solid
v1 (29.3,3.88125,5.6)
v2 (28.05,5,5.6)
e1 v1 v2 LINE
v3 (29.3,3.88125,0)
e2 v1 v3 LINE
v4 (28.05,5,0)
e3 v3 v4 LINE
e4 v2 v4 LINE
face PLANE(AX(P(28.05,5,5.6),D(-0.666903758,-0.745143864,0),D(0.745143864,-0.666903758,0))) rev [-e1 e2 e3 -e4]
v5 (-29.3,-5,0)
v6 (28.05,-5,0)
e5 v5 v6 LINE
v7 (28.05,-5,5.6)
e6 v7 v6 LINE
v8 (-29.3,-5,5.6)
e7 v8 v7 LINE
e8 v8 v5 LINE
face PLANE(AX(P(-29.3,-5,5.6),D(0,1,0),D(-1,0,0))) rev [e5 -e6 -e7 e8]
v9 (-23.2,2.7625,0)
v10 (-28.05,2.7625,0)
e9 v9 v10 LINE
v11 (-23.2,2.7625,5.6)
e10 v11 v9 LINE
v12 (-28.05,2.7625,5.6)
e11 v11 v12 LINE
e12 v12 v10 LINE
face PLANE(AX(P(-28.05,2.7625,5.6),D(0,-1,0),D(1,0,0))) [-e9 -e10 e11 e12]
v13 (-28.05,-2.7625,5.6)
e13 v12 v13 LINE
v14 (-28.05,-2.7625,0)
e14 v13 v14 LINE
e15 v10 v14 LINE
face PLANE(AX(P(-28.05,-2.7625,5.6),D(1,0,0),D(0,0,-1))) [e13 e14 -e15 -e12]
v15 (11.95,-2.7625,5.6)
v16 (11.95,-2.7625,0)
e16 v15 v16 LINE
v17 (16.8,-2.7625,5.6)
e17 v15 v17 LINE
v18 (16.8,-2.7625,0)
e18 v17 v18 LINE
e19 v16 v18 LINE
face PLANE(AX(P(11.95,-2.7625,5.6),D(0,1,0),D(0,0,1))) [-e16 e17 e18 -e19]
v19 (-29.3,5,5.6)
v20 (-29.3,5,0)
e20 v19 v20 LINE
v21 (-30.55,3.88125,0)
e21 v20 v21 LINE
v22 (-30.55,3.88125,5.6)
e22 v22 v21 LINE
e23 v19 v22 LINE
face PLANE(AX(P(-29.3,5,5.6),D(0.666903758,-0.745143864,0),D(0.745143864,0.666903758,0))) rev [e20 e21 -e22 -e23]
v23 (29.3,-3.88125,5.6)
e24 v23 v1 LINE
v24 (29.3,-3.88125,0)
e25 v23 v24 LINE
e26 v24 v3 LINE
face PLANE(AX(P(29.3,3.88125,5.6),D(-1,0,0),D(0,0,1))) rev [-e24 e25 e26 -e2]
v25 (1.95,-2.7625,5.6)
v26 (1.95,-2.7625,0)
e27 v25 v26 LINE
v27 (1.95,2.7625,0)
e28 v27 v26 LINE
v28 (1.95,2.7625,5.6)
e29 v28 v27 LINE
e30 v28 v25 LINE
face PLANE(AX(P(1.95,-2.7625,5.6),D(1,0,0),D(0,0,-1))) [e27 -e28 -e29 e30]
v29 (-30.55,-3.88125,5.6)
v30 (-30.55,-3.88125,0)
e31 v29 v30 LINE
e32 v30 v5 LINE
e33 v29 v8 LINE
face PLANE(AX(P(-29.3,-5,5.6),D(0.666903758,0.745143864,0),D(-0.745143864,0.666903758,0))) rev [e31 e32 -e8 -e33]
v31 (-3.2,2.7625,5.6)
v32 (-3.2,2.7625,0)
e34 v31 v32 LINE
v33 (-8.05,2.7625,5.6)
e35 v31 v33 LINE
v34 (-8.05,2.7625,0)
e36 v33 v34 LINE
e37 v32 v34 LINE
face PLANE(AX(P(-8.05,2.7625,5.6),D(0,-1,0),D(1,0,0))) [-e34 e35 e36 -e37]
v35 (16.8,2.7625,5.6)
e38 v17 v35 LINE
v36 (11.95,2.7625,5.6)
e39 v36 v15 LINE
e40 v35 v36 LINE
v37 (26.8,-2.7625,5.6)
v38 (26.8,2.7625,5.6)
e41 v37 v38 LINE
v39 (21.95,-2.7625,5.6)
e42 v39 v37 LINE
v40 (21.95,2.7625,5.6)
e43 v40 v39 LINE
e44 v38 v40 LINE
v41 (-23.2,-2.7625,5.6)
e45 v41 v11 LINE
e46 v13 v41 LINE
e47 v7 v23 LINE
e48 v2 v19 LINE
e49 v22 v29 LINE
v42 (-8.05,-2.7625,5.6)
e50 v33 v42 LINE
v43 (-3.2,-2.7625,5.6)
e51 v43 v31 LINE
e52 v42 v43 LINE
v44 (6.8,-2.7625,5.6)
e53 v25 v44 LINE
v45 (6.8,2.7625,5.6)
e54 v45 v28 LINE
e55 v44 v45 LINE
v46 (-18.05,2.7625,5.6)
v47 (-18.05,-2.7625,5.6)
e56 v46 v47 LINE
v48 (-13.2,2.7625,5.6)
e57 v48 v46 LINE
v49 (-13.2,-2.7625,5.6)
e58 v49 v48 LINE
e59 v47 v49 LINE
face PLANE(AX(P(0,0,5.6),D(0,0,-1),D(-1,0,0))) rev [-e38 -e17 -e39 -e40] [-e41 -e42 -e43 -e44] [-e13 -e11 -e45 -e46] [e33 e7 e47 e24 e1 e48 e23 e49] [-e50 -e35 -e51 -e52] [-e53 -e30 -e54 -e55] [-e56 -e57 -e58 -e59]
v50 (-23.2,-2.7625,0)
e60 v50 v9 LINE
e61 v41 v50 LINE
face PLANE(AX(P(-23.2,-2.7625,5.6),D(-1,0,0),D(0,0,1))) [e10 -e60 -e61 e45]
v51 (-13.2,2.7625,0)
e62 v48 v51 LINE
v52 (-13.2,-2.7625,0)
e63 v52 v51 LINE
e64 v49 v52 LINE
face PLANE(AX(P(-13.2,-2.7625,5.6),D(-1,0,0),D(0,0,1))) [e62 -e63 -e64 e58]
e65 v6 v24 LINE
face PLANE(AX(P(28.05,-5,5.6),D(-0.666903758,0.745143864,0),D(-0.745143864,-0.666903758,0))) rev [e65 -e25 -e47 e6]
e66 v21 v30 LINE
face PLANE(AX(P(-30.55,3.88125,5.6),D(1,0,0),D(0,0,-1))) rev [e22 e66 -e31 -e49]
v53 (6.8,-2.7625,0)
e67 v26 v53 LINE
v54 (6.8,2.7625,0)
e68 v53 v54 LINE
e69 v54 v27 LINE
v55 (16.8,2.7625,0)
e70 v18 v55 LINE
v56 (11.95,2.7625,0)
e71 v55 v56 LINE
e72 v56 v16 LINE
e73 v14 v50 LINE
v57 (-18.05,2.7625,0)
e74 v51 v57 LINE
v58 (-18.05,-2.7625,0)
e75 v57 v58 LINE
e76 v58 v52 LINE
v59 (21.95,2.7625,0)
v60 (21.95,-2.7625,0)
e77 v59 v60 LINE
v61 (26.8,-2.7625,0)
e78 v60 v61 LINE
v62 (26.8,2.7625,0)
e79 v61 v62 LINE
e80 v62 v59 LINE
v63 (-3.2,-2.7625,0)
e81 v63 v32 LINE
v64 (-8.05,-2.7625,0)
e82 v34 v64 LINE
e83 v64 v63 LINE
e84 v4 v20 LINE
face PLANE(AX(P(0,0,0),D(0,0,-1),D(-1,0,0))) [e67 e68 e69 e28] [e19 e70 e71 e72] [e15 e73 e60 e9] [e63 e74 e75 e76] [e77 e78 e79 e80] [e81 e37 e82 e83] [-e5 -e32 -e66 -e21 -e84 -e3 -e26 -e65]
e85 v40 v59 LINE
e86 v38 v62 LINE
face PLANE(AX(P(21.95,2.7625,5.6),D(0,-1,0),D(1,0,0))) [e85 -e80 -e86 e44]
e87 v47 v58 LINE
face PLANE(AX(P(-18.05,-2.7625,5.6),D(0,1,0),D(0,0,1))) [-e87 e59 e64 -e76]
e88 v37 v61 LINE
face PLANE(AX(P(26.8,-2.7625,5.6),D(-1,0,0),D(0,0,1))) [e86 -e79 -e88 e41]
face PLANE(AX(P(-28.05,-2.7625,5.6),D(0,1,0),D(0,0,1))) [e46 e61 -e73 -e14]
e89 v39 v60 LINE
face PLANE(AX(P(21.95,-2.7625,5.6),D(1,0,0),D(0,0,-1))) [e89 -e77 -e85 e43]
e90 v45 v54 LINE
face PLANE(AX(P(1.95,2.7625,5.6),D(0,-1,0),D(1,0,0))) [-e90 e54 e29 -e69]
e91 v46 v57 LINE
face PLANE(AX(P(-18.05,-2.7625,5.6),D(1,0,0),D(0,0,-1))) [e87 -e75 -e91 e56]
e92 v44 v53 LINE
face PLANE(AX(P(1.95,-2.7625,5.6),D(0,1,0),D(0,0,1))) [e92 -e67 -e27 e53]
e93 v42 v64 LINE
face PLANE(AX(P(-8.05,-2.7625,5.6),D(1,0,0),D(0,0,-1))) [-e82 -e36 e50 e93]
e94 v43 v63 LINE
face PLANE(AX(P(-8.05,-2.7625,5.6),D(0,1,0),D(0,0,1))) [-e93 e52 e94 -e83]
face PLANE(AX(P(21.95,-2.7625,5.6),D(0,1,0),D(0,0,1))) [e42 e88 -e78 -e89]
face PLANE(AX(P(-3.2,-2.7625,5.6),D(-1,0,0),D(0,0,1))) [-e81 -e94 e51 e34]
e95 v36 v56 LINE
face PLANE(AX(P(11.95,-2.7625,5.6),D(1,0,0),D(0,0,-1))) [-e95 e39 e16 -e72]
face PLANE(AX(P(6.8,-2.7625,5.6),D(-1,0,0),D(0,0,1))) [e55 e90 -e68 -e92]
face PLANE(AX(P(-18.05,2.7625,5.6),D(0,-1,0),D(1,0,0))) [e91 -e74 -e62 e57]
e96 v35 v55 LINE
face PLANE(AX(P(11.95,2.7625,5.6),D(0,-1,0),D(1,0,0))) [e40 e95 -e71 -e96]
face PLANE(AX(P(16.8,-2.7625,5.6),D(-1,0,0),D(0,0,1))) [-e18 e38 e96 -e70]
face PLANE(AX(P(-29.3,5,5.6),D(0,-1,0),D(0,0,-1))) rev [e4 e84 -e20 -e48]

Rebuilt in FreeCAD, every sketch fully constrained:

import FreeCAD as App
import Part
import Sketcher
from FreeCAD import Vector

doc = App.newDocument("Part")
body = doc.addObject("PartDesign::Body", "Body")

# Sketch on XY plane
sketch1 = doc.addObject("Sketcher::SketchObject", "Sketch")
body.addObject(sketch1)
sketch1.AttachmentSupport = (doc.XY_Plane, [""])
sketch1.MapMode = "FlatFace"
sketch1.addGeometry(Part.LineSegment(Vector(-30.6, 3.9, 0), Vector(-30.6, -3.9, 0)), False)
sketch1.addGeometry(Part.LineSegment(Vector(-30.6, -3.9, 0), Vector(-29.3, -5, 0)), False)
sketch1.addGeometry(Part.LineSegment(Vector(-29.3, -5, 0), Vector(28.1, -5, 0)), False)
sketch1.addGeometry(Part.LineSegment(Vector(28.1, -5, 0), Vector(29.3, -3.9, 0)), False)
sketch1.addGeometry(Part.LineSegment(Vector(29.3, -3.9, 0), Vector(29.3, 3.9, 0)), False)
sketch1.addGeometry(Part.LineSegment(Vector(29.3, 3.9, 0), Vector(28.1, 5, 0)), False)
sketch1.addGeometry(Part.LineSegment(Vector(28.1, 5, 0), Vector(-29.3, 5, 0)), False)
sketch1.addGeometry(Part.LineSegment(Vector(-29.3, 5, 0), Vector(-30.6, 3.9, 0)), False)
sketch1.addGeometry(Part.LineSegment(Vector(-23.2, -2.8, 0), Vector(-28.1, -2.8, 0)), False)
sketch1.addGeometry(Part.LineSegment(Vector(-28.1, -2.8, 0), Vector(-28.1, 2.8, 0)), False)
sketch1.addGeometry(Part.LineSegment(Vector(-28.1, 2.8, 0), Vector(-23.2, 2.8, 0)), False)
sketch1.addGeometry(Part.LineSegment(Vector(-23.2, 2.8, 0), Vector(-23.2, -2.8, 0)), False)
sketch1.addGeometry(Part.LineSegment(Vector(-13.2, -2.8, 0), Vector(-18.1, -2.8, 0)), False)
sketch1.addGeometry(Part.LineSegment(Vector(-18.1, -2.8, 0), Vector(-18.1, 2.8, 0)), False)
sketch1.addGeometry(Part.LineSegment(Vector(-18.1, 2.8, 0), Vector(-13.2, 2.8, 0)), False)
sketch1.addGeometry(Part.LineSegment(Vector(-13.2, 2.8, 0), Vector(-13.2, -2.8, 0)), False)
sketch1.addGeometry(Part.LineSegment(Vector(-3.2, -2.8, 0), Vector(-8.1, -2.8, 0)), False)
sketch1.addGeometry(Part.LineSegment(Vector(-8.1, -2.8, 0), Vector(-8.1, 2.8, 0)), False)
sketch1.addGeometry(Part.LineSegment(Vector(-8.1, 2.8, 0), Vector(-3.2, 2.8, 0)), False)
sketch1.addGeometry(Part.LineSegment(Vector(-3.2, 2.8, 0), Vector(-3.2, -2.8, 0)), False)
sketch1.addGeometry(Part.LineSegment(Vector(6.8, -2.8, 0), Vector(1.9, -2.8, 0)), False)
sketch1.addGeometry(Part.LineSegment(Vector(1.9, -2.8, 0), Vector(1.9, 2.8, 0)), False)
sketch1.addGeometry(Part.LineSegment(Vector(1.9, 2.8, 0), Vector(6.8, 2.8, 0)), False)
sketch1.addGeometry(Part.LineSegment(Vector(6.8, 2.8, 0), Vector(6.8, -2.8, 0)), False)
sketch1.addGeometry(Part.LineSegment(Vector(16.8, -2.8, 0), Vector(11.9, -2.8, 0)), False)
sketch1.addGeometry(Part.LineSegment(Vector(11.9, -2.8, 0), Vector(11.9, 2.8, 0)), False)
sketch1.addGeometry(Part.LineSegment(Vector(11.9, 2.8, 0), Vector(16.8, 2.8, 0)), False)
sketch1.addGeometry(Part.LineSegment(Vector(16.8, 2.8, 0), Vector(16.8, -2.8, 0)), False)
sketch1.addGeometry(Part.LineSegment(Vector(26.8, -2.8, 0), Vector(21.9, -2.8, 0)), False)
sketch1.addGeometry(Part.LineSegment(Vector(21.9, -2.8, 0), Vector(21.9, 2.8, 0)), False)
sketch1.addGeometry(Part.LineSegment(Vector(21.9, 2.8, 0), Vector(26.8, 2.8, 0)), False)
sketch1.addGeometry(Part.LineSegment(Vector(26.8, 2.8, 0), Vector(26.8, -2.8, 0)), False)
sketch1.addConstraint(Sketcher.Constraint("Coincident", 0, 2, 1, 1))
sketch1.addConstraint(Sketcher.Constraint("Coincident", 1, 2, 2, 1))
sketch1.addConstraint(Sketcher.Constraint("Coincident", 2, 2, 3, 1))
sketch1.addConstraint(Sketcher.Constraint("Coincident", 3, 2, 4, 1))
sketch1.addConstraint(Sketcher.Constraint("Coincident", 4, 2, 5, 1))
sketch1.addConstraint(Sketcher.Constraint("Coincident", 5, 2, 6, 1))
sketch1.addConstraint(Sketcher.Constraint("Coincident", 6, 2, 7, 1))
sketch1.addConstraint(Sketcher.Constraint("Coincident", 7, 2, 0, 1))
sketch1.addConstraint(Sketcher.Constraint("Coincident", 8, 2, 9, 1))
sketch1.addConstraint(Sketcher.Constraint("Coincident", 9, 2, 10, 1))
sketch1.addConstraint(Sketcher.Constraint("Coincident", 10, 2, 11, 1))
sketch1.addConstraint(Sketcher.Constraint("Coincident", 11, 2, 8, 1))
sketch1.addConstraint(Sketcher.Constraint("Coincident", 12, 2, 13, 1))
sketch1.addConstraint(Sketcher.Constraint("Coincident", 13, 2, 14, 1))
sketch1.addConstraint(Sketcher.Constraint("Coincident", 14, 2, 15, 1))
sketch1.addConstraint(Sketcher.Constraint("Coincident", 15, 2, 12, 1))
sketch1.addConstraint(Sketcher.Constraint("Coincident", 16, 2, 17, 1))
sketch1.addConstraint(Sketcher.Constraint("Coincident", 17, 2, 18, 1))
sketch1.addConstraint(Sketcher.Constraint("Coincident", 18, 2, 19, 1))
sketch1.addConstraint(Sketcher.Constraint("Coincident", 19, 2, 16, 1))
sketch1.addConstraint(Sketcher.Constraint("Coincident", 20, 2, 21, 1))
sketch1.addConstraint(Sketcher.Constraint("Coincident", 21, 2, 22, 1))
sketch1.addConstraint(Sketcher.Constraint("Coincident", 22, 2, 23, 1))
sketch1.addConstraint(Sketcher.Constraint("Coincident", 23, 2, 20, 1))
sketch1.addConstraint(Sketcher.Constraint("Coincident", 24, 2, 25, 1))
sketch1.addConstraint(Sketcher.Constraint("Coincident", 25, 2, 26, 1))
sketch1.addConstraint(Sketcher.Constraint("Coincident", 26, 2, 27, 1))
sketch1.addConstraint(Sketcher.Constraint("Coincident", 27, 2, 24, 1))
sketch1.addConstraint(Sketcher.Constraint("Coincident", 28, 2, 29, 1))
sketch1.addConstraint(Sketcher.Constraint("Coincident", 29, 2, 30, 1))
sketch1.addConstraint(Sketcher.Constraint("Coincident", 30, 2, 31, 1))
sketch1.addConstraint(Sketcher.Constraint("Coincident", 31, 2, 28, 1))
sketch1.addConstraint(Sketcher.Constraint("Vertical", 0))
sketch1.addConstraint(Sketcher.Constraint("Horizontal", 2))
sketch1.addConstraint(Sketcher.Constraint("Vertical", 4))
sketch1.addConstraint(Sketcher.Constraint("Horizontal", 6))
sketch1.addConstraint(Sketcher.Constraint("Horizontal", 8))
sketch1.addConstraint(Sketcher.Constraint("Vertical", 9))
sketch1.addConstraint(Sketcher.Constraint("Horizontal", 10))
sketch1.addConstraint(Sketcher.Constraint("Vertical", 11))
sketch1.addConstraint(Sketcher.Constraint("Horizontal", 12))
sketch1.addConstraint(Sketcher.Constraint("Vertical", 13))
sketch1.addConstraint(Sketcher.Constraint("Horizontal", 14))
sketch1.addConstraint(Sketcher.Constraint("Vertical", 15))
sketch1.addConstraint(Sketcher.Constraint("Horizontal", 16))
sketch1.addConstraint(Sketcher.Constraint("Vertical", 17))
sketch1.addConstraint(Sketcher.Constraint("Horizontal", 18))
sketch1.addConstraint(Sketcher.Constraint("Vertical", 19))
sketch1.addConstraint(Sketcher.Constraint("Horizontal", 20))
sketch1.addConstraint(Sketcher.Constraint("Vertical", 21))
sketch1.addConstraint(Sketcher.Constraint("Horizontal", 22))
sketch1.addConstraint(Sketcher.Constraint("Vertical", 23))
sketch1.addConstraint(Sketcher.Constraint("Horizontal", 24))
sketch1.addConstraint(Sketcher.Constraint("Vertical", 25))
sketch1.addConstraint(Sketcher.Constraint("Horizontal", 26))
sketch1.addConstraint(Sketcher.Constraint("Vertical", 27))
sketch1.addConstraint(Sketcher.Constraint("Horizontal", 28))
sketch1.addConstraint(Sketcher.Constraint("Vertical", 29))
sketch1.addConstraint(Sketcher.Constraint("Horizontal", 30))
sketch1.addConstraint(Sketcher.Constraint("Vertical", 31))
sketch1.addConstraint(Sketcher.Constraint("Symmetric", 2, 2, 5, 2, -1))
sketch1.addConstraint(Sketcher.Constraint("Parallel", 1, 5))
sketch1.addConstraint(Sketcher.Constraint("Parallel", 3, 7))
sketch1.addConstraint(Sketcher.Constraint("Horizontal", 0, 2, 3, 2))
sketch1.addConstraint(Sketcher.Constraint("Horizontal", 4, 2, 7, 2))
sketch1.addConstraint(Sketcher.Constraint("Horizontal", 11, 2, 12, 2))
sketch1.addConstraint(Sketcher.Constraint("Horizontal", 10, 2, 13, 2))
sketch1.addConstraint(Sketcher.Constraint("Horizontal", 15, 2, 16, 2))
sketch1.addConstraint(Sketcher.Constraint("Horizontal", 14, 2, 17, 2))
sketch1.addConstraint(Sketcher.Constraint("Horizontal", 19, 2, 20, 2))
sketch1.addConstraint(Sketcher.Constraint("Horizontal", 18, 2, 21, 2))
sketch1.addConstraint(Sketcher.Constraint("Horizontal", 23, 2, 24, 2))
sketch1.addConstraint(Sketcher.Constraint("Horizontal", 22, 2, 25, 2))
sketch1.addConstraint(Sketcher.Constraint("Horizontal", 27, 2, 28, 2))
sketch1.addConstraint(Sketcher.Constraint("Horizontal", 26, 2, 29, 2))
sketch1.addConstraint(Sketcher.Constraint("Vertical", 1, 2, 6, 2))
sketch1.addConstraint(Sketcher.Constraint("Equal", 10, 12))
sketch1.addConstraint(Sketcher.Constraint("Equal", 14, 16))
sketch1.addConstraint(Sketcher.Constraint("Equal", 18, 20))
sketch1.addConstraint(Sketcher.Constraint("Equal", 22, 24))
sketch1.addConstraint(Sketcher.Constraint("Equal", 26, 28))
sketch1.addConstraint(Sketcher.Constraint("DistanceY", 1, 2, -1, 1, 5.0))
sketch1.addConstraint(Sketcher.Constraint("DistanceX", 8, 2, 12, 2, 10.0))
sketch1.addConstraint(Sketcher.Constraint("DistanceX", 12, 2, 16, 2, 10.0))
sketch1.addConstraint(Sketcher.Constraint("DistanceX", 16, 2, 20, 2, 10.0))
sketch1.addConstraint(Sketcher.Constraint("DistanceX", 20, 2, 24, 2, 10.0))
sketch1.addConstraint(Sketcher.Constraint("DistanceX", 2, 1, 2, 2, 57.35))
sketch1.addConstraint(Sketcher.Constraint("DistanceX", 8, 2, 8, 1, 4.85))
sketch1.addConstraint(Sketcher.Constraint("DistanceX", 1, 2, -1, 1, 29.3))
sketch1.addConstraint(Sketcher.Constraint("DistanceX", -1, 1, 3, 2, 29.3))
sketch1.addConstraint(Sketcher.Constraint("DistanceX", 10, 2, -1, 1, 23.2))
sketch1.addConstraint(Sketcher.Constraint("DistanceX", -1, 1, 30, 2, 26.8))
sketch1.addConstraint(Sketcher.Constraint("DistanceY", 9, 1, 9, 2, 5.525))
sketch1.addConstraint(Sketcher.Constraint("DistanceY", 0, 2, 0, 1, 7.7625))
sketch1.addConstraint(Sketcher.Constraint("DistanceY", 8, 2, -1, 1, 2.7625))
pad1 = doc.addObject("PartDesign::Pad", "Pad")
body.addObject(pad1)
pad1.Profile = sketch1
pad1.Length = 5.6

doc.recompute()
